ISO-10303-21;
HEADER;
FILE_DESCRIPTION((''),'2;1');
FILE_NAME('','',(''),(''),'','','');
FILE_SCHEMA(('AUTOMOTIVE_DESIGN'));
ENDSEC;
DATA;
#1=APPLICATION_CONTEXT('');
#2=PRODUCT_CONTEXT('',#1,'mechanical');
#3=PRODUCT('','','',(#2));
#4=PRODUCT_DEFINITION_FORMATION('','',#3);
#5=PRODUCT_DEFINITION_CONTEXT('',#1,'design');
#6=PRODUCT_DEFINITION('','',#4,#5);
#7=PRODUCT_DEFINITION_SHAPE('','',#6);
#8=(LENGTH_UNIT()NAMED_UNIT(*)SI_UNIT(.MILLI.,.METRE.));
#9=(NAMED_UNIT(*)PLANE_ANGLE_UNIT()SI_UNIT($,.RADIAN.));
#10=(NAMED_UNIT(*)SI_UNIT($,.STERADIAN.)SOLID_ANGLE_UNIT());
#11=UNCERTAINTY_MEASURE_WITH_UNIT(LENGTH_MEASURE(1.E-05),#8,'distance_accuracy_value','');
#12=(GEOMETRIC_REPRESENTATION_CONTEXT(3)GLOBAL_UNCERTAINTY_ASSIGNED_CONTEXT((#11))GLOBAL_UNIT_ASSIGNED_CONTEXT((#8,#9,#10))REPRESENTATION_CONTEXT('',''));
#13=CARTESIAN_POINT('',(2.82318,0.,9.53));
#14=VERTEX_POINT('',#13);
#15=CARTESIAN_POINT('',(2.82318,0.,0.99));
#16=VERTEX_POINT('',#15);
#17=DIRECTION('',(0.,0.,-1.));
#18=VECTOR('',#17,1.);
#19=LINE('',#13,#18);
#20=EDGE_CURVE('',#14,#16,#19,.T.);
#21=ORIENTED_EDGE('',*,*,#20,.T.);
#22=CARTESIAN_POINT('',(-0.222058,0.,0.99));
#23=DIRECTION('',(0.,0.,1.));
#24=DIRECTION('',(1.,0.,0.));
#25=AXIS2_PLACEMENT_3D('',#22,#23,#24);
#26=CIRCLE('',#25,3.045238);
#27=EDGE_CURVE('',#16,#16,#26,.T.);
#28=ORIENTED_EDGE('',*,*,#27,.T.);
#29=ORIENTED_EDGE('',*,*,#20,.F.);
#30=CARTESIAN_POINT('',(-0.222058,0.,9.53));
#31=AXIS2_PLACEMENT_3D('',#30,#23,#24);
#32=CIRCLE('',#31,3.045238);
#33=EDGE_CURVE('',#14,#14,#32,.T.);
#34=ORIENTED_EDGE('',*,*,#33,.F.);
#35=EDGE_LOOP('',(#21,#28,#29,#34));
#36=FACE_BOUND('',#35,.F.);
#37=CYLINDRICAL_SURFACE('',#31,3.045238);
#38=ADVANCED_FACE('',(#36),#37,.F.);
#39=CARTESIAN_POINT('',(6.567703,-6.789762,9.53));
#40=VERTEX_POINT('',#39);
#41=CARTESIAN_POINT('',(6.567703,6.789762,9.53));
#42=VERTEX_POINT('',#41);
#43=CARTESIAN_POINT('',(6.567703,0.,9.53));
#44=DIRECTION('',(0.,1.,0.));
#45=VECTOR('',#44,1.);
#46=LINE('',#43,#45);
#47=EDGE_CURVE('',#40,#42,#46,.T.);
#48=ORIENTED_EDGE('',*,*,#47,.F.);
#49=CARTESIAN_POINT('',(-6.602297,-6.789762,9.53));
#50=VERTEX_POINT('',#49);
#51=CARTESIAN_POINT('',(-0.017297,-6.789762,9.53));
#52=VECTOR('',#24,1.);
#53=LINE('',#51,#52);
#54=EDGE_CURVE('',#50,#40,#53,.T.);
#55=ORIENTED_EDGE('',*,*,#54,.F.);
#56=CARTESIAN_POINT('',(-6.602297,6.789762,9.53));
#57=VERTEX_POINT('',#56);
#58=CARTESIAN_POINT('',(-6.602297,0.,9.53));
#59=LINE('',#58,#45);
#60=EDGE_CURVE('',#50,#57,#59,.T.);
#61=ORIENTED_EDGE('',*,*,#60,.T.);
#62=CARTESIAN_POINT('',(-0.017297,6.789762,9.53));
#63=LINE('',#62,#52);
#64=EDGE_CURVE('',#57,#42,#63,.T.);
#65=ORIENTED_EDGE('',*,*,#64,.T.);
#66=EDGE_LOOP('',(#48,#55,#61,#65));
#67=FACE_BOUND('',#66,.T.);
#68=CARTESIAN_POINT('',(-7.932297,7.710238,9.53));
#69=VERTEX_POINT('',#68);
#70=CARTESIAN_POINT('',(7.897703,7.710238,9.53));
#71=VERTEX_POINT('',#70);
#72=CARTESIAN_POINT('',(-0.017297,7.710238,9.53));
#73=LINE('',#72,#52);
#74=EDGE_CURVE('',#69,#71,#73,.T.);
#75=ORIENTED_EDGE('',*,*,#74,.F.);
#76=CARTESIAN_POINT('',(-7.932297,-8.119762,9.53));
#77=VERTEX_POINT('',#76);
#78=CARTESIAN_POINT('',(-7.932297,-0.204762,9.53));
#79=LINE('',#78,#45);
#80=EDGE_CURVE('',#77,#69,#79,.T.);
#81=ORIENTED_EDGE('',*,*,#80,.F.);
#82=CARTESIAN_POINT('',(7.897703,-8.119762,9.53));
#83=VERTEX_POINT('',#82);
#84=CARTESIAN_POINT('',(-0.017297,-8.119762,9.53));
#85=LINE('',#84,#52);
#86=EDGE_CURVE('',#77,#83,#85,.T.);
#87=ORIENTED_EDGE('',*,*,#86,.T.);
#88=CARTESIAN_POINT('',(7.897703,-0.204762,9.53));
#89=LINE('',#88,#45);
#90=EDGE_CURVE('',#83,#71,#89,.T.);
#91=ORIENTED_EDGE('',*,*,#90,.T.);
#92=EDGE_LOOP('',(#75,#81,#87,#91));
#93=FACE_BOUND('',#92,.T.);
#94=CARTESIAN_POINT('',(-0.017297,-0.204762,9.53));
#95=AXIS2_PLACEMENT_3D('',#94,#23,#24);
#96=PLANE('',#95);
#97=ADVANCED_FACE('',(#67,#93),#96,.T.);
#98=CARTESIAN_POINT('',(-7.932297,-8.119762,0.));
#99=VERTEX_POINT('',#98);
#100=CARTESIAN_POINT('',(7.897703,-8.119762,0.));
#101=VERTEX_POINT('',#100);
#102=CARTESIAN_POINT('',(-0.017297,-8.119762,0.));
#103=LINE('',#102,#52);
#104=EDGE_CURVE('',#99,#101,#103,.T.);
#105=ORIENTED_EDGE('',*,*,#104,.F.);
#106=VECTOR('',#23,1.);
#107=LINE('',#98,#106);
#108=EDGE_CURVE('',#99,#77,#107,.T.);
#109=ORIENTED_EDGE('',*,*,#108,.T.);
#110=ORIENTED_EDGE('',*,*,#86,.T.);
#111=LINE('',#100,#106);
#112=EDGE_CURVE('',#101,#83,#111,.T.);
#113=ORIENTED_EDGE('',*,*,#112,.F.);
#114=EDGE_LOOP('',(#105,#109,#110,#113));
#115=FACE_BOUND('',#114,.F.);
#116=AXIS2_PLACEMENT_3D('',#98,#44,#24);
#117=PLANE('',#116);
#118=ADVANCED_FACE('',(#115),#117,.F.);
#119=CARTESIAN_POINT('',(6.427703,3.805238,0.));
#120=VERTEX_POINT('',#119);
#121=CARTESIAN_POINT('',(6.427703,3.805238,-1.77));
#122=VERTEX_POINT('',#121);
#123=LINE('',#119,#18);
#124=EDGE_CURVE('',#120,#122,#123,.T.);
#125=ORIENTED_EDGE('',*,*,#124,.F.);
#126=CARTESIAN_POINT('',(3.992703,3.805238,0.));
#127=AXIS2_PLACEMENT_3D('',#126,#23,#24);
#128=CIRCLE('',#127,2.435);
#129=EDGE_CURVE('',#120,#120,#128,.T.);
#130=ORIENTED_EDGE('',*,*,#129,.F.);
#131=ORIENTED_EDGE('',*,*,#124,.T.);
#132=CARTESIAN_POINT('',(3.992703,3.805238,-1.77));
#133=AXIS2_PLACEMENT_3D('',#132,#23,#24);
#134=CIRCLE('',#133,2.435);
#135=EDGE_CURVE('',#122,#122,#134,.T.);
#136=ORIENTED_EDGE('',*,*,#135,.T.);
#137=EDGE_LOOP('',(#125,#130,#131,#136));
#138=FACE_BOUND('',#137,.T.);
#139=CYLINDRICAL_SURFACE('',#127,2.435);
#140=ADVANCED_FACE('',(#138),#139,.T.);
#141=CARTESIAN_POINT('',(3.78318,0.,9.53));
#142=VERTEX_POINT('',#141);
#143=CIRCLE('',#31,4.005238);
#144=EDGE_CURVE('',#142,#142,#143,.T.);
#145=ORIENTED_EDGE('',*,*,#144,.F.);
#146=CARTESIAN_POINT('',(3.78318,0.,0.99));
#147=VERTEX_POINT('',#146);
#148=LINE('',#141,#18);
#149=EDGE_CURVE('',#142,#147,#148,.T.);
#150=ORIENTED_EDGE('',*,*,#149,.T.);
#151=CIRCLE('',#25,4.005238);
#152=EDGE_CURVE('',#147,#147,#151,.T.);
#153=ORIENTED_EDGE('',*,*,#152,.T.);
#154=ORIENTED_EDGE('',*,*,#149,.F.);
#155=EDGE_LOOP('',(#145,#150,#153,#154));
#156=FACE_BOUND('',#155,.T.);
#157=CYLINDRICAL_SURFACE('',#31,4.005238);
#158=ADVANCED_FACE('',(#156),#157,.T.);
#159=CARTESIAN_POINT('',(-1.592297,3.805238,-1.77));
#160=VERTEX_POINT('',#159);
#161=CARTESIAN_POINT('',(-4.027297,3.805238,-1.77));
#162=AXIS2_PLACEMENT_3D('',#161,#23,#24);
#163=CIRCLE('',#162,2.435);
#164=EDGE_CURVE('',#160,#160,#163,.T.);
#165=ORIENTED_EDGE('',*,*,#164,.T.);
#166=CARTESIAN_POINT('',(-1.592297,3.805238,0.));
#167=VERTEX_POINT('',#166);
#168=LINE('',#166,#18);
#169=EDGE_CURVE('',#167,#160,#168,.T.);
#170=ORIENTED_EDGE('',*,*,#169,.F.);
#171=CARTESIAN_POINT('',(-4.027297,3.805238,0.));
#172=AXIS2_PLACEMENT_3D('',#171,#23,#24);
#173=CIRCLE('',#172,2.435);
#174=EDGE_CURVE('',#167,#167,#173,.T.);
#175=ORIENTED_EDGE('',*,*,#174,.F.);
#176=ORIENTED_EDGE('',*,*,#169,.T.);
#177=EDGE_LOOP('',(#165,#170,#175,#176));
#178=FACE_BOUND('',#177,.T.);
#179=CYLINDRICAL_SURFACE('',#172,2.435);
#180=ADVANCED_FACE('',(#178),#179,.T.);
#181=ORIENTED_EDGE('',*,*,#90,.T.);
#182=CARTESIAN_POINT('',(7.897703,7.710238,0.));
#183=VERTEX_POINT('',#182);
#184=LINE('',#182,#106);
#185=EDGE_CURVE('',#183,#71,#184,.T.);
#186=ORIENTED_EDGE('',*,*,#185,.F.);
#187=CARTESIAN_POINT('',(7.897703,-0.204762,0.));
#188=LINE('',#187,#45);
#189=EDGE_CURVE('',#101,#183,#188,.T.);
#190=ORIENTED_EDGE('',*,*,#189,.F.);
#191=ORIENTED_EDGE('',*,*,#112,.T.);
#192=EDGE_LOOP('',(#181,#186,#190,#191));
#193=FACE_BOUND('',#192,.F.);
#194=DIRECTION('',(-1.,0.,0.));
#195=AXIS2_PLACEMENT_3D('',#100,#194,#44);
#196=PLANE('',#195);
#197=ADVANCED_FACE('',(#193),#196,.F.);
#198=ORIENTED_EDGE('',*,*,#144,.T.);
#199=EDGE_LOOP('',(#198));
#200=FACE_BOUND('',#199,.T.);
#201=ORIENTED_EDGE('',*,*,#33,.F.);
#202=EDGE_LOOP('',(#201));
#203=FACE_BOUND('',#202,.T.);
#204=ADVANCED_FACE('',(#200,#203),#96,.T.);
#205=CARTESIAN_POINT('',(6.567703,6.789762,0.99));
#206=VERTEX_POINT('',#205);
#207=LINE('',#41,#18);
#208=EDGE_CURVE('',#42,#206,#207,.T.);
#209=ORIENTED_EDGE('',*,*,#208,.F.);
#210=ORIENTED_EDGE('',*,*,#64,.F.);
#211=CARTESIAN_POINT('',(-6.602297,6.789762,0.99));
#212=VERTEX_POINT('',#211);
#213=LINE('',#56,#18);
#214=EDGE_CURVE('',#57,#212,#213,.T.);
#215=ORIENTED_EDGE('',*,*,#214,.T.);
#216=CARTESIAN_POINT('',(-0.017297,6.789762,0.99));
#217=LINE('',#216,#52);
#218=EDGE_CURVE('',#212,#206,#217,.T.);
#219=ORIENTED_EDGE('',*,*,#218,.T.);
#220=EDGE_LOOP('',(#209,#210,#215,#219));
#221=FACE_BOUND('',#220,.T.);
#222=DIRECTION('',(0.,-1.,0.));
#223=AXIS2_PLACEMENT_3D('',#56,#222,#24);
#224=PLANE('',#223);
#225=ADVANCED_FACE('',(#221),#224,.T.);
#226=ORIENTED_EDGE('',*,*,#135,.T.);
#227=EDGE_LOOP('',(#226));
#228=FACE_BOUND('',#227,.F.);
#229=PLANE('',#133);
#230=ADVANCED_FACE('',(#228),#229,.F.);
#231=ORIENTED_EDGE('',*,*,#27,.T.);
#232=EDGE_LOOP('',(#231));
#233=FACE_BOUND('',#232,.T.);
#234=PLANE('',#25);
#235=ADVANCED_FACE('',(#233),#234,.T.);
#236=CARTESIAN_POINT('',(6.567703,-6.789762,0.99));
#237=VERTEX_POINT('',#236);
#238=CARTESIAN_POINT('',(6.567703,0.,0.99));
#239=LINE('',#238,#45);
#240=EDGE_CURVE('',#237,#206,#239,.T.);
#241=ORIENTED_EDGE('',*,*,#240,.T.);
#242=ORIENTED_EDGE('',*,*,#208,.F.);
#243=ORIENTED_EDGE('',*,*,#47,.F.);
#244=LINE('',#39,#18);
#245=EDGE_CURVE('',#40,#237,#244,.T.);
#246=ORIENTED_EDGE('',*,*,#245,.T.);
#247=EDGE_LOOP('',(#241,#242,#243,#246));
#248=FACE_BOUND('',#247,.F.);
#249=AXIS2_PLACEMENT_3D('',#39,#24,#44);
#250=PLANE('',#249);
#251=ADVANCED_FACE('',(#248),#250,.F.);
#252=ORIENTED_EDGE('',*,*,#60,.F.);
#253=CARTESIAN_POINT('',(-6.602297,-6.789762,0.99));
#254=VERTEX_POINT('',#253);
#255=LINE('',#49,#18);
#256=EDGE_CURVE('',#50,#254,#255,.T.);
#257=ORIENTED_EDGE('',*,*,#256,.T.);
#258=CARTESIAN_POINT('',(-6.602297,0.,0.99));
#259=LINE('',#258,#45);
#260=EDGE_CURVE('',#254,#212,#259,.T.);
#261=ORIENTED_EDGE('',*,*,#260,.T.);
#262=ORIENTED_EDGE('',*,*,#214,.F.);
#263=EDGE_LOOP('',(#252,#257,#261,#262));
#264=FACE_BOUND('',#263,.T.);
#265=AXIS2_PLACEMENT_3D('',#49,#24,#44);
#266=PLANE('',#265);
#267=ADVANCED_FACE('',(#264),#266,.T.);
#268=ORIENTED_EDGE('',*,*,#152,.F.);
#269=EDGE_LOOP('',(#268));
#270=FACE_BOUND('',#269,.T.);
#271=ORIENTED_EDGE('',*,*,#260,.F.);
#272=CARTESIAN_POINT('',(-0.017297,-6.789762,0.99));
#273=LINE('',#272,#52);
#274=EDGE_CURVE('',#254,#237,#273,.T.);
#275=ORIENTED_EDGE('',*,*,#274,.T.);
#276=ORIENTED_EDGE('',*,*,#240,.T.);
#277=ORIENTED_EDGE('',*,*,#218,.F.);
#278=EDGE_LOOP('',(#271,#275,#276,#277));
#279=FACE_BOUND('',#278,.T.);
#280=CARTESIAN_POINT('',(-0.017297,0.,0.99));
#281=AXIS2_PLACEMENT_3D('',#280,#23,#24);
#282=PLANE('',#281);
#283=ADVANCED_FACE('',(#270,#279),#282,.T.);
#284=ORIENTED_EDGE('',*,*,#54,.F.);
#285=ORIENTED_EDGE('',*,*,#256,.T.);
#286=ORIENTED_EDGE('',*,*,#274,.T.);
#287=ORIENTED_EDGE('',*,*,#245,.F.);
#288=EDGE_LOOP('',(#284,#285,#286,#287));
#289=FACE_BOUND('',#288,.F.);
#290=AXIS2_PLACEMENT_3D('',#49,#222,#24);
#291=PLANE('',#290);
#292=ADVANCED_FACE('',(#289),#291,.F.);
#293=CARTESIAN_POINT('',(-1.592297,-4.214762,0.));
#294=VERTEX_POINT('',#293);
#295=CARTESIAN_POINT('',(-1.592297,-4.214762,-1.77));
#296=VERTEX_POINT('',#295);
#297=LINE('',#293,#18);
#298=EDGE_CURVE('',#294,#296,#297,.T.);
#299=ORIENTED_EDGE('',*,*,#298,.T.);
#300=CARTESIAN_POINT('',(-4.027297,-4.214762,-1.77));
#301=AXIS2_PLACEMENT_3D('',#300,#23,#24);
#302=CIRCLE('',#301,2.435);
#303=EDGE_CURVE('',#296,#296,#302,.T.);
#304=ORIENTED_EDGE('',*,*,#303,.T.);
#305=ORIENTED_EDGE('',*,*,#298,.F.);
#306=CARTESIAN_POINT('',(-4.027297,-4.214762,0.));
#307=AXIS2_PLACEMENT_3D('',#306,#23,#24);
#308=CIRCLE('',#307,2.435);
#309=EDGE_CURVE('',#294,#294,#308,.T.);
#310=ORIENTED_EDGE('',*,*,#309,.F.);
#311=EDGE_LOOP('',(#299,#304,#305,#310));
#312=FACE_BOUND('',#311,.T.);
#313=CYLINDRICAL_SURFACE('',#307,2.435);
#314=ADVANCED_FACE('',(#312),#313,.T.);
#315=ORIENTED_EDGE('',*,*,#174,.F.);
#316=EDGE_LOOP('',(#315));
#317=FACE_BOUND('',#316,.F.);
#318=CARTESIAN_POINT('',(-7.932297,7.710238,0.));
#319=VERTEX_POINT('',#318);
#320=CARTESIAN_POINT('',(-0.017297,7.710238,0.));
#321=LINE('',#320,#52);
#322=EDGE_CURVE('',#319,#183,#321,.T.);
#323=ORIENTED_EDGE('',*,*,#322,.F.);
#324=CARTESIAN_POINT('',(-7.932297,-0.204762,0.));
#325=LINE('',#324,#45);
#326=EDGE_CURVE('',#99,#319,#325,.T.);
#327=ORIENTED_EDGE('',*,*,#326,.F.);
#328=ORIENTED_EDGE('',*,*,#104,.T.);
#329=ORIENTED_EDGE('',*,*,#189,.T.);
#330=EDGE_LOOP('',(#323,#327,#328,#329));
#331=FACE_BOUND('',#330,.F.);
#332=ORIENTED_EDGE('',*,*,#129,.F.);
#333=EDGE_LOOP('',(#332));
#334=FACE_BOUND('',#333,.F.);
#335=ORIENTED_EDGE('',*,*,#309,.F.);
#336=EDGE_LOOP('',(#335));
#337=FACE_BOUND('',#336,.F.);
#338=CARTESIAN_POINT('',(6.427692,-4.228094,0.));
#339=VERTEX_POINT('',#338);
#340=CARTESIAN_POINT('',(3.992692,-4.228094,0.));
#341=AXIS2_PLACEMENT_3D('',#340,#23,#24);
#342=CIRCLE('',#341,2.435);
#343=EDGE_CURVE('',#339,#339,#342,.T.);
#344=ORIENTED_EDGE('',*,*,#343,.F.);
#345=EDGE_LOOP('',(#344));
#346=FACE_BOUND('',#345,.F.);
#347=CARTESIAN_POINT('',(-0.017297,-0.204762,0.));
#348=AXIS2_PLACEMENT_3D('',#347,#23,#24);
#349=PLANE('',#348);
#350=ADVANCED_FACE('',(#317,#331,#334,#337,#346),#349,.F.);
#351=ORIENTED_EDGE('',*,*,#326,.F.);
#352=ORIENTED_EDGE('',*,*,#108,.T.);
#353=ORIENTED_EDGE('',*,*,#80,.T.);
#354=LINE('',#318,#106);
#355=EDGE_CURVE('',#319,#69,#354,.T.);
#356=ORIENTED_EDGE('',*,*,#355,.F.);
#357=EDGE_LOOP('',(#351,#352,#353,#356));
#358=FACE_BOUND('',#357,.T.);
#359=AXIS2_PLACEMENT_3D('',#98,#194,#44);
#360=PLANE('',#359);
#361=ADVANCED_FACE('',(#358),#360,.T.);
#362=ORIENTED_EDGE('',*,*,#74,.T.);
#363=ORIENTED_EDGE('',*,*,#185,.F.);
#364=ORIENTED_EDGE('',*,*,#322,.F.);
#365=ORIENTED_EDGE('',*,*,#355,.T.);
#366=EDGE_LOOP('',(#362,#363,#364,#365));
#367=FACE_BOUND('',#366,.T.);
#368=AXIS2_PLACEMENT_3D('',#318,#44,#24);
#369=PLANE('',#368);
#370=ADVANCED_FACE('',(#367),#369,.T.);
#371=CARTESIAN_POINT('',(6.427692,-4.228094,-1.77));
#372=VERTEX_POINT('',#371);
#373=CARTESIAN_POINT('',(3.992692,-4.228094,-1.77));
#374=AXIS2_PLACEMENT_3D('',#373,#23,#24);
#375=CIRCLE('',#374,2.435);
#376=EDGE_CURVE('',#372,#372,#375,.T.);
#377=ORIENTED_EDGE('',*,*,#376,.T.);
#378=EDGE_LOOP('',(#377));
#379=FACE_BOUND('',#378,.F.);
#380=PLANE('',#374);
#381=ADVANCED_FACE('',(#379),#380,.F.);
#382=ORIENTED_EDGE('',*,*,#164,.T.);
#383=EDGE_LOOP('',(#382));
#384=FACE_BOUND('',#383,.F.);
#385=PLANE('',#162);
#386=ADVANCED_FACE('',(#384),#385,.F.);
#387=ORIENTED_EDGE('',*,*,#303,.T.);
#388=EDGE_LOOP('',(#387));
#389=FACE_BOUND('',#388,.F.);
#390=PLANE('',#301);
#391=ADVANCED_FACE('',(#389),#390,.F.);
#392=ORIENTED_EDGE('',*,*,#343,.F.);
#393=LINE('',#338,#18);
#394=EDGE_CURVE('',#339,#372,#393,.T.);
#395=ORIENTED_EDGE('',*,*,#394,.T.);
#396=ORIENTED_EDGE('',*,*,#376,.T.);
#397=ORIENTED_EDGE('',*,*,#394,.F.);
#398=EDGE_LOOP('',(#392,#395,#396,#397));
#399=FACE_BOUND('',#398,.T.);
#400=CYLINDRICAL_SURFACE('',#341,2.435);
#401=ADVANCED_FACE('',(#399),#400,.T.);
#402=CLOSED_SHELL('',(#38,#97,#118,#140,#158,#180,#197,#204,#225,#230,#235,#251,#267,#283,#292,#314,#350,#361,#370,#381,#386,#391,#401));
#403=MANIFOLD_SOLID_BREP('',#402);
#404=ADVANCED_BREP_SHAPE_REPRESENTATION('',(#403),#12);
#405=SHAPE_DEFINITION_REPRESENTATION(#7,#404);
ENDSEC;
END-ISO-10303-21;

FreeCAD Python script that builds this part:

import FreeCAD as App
import Part
import Sketcher
from FreeCAD import Vector
Q = App.Units.Quantity


def add_polygon(sketch, points):
    """Adds a closed chain of lines whose ends are joined by coincident constraints."""
    first, n = sketch.GeometryCount, len(points)
    for a, b in zip(points, points[1:] + points[:1]):
        sketch.addGeometry(Part.LineSegment(App.Vector(*a, 0), App.Vector(*b, 0)), False)
    for i in range(n):
        sketch.addConstraint(Sketcher.Constraint("Coincident", first + i, 2, first + (i + 1) % n, 1))

doc = App.newDocument("Part")
body = doc.addObject("PartDesign::Body", "Body")

# Sketch on XY plane
sketch1 = body.newObject("Sketcher::SketchObject", "Sketch")
sketch1.AttachmentSupport = (doc.getObject("XY_Plane"), [""])
sketch1.MapMode = "FlatFace"
add_polygon(sketch1, [(-8, 8), (-8, -8), (8, -8), (8, 8)])  # lines 0-3
sketch1.addConstraint(Sketcher.Constraint("Vertical", 0))
sketch1.addConstraint(Sketcher.Constraint("Horizontal", 1))
sketch1.addConstraint(Sketcher.Constraint("Vertical", 2))
sketch1.addConstraint(Sketcher.Constraint("Horizontal", 3))
sketch1.addConstraint(Sketcher.Constraint("Equal", 3, 0))
sketch1.addConstraint(Sketcher.Constraint("DistanceX", 1, 1, 1, 2, Q("15.83 mm")))
sketch1.addConstraint(Sketcher.Constraint("DistanceY", 0, 2, -1, 1, Q("8.119762 mm")))
sketch1.addConstraint(Sketcher.Constraint("DistanceX", 0, 2, -1, 1, Q("7.932297 mm")))
pad1 = body.newObject("PartDesign::Pad", "Pad")
pad1.Profile = sketch1
pad1.Length = 9.53

# Sketch on XY plane
sketch2 = body.newObject("Sketcher::SketchObject", "Sketch001")
sketch2.AttachmentSupport = (doc.getObject("XY_Plane"), [""])
sketch2.MapMode = "FlatFace"
sketch2.addGeometry(Part.Circle(Vector(-4, -4.2, 0), Vector(0, 0, 1), 2.4), False)
sketch2.addGeometry(Part.Circle(Vector(4, -4.2, 0), Vector(0, 0, 1), 2.4), False)
sketch2.addGeometry(Part.Circle(Vector(-4, 3.8, 0), Vector(0, 0, 1), 2.4), False)
sketch2.addGeometry(Part.Circle(Vector(4, 3.8, 0), Vector(0, 0, 1), 2.4), False)
sketch2.addConstraint(Sketcher.Constraint("Equal", 0, 1))
sketch2.addConstraint(Sketcher.Constraint("Equal", 1, 2))
sketch2.addConstraint(Sketcher.Constraint("Equal", 2, 3))
sketch2.addConstraint(Sketcher.Constraint("Horizontal", 2, 3, 3, 3))
sketch2.addConstraint(Sketcher.Constraint("Vertical", 0, 3, 2, 3))
sketch2.addConstraint(Sketcher.Constraint("Diameter", 0, Q("4.87 mm")))
sketch2.addConstraint(Sketcher.Constraint("DistanceY", 0, 3, 2, 3, Q("8.02 mm")))
sketch2.addConstraint(Sketcher.Constraint("DistanceX", 2, 3, 3, 3, Q("8.02 mm")))
sketch2.addConstraint(Sketcher.Constraint("DistanceY", 0, 3, -1, 1, Q("4.214762 mm")))
sketch2.addConstraint(Sketcher.Constraint("DistanceX", 0, 3, 1, 3, Q("8.019989 mm")))
sketch2.addConstraint(Sketcher.Constraint("DistanceX", 0, 3, -1, 1, Q("4.027297 mm")))
sketch2.addConstraint(Sketcher.Constraint("DistanceY", 1, 3, -1, 1, Q("4.228094 mm")))
pad2 = body.newObject("PartDesign::Pad", "Pad001")
pad2.Profile = sketch2
pad2.Length = 1.77
pad2.Reversed = True

# Sketch on XY plane
sketch3 = body.newObject("Sketcher::SketchObject", "Sketch002")
sketch3.AttachmentSupport = (doc.getObject("XY_Plane"), [""])
sketch3.MapMode = "FlatFace"
sketch3.AttachmentOffset = App.Placement(Vector(0, 0, 9.53), App.Rotation())
add_polygon(sketch3, [(-6.6, 6.8), (-6.6, -6.8), (6.6, -6.8), (6.6, 6.8)])  # lines 0-3
sketch3.addGeometry(Part.Circle(Vector(-0.2, 0, 0), Vector(0, 0, 1), 4), False)  # 4
sketch3.addGeometry(Part.Circle(Vector(-0.2, 0, 0), Vector(0, 0, 1), 3), False)  # 5
sketch3.addConstraint(Sketcher.Constraint("Vertical", 0))
sketch3.addConstraint(Sketcher.Constraint("Horizontal", 1))
sketch3.addConstraint(Sketcher.Constraint("Vertical", 2))
sketch3.addConstraint(Sketcher.Constraint("Horizontal", 3))
sketch3.addConstraint(Sketcher.Constraint("Coincident", 5, 3, 4, 3))
sketch3.addConstraint(Sketcher.Constraint("PointOnObject", 4, 3, -1))
sketch3.addConstraint(Sketcher.Constraint("DistanceX", 1, 1, 1, 2, Q("13.17 mm")))
sketch3.addConstraint(Sketcher.Constraint("Diameter", 4, Q("8.010477 mm")))
sketch3.addConstraint(Sketcher.Constraint("Diameter", 5, Q("6.090477 mm")))
sketch3.addConstraint(Sketcher.Constraint("DistanceY", 0, 2, 0, 1, Q("13.579523 mm")))
sketch3.addConstraint(Sketcher.Constraint("DistanceX", 4, 3, -1, 1, Q("0.222058 mm")))
sketch3.addConstraint(Sketcher.Constraint("DistanceY", 0, 2, -1, 1, Q("6.789762 mm")))
sketch3.addConstraint(Sketcher.Constraint("DistanceX", 0, 2, 4, 3, Q("6.380238 mm")))
pocket1 = body.newObject("PartDesign::Pocket", "Pocket")
pocket1.Profile = sketch3
pocket1.Length = 8.54

doc.recompute()
